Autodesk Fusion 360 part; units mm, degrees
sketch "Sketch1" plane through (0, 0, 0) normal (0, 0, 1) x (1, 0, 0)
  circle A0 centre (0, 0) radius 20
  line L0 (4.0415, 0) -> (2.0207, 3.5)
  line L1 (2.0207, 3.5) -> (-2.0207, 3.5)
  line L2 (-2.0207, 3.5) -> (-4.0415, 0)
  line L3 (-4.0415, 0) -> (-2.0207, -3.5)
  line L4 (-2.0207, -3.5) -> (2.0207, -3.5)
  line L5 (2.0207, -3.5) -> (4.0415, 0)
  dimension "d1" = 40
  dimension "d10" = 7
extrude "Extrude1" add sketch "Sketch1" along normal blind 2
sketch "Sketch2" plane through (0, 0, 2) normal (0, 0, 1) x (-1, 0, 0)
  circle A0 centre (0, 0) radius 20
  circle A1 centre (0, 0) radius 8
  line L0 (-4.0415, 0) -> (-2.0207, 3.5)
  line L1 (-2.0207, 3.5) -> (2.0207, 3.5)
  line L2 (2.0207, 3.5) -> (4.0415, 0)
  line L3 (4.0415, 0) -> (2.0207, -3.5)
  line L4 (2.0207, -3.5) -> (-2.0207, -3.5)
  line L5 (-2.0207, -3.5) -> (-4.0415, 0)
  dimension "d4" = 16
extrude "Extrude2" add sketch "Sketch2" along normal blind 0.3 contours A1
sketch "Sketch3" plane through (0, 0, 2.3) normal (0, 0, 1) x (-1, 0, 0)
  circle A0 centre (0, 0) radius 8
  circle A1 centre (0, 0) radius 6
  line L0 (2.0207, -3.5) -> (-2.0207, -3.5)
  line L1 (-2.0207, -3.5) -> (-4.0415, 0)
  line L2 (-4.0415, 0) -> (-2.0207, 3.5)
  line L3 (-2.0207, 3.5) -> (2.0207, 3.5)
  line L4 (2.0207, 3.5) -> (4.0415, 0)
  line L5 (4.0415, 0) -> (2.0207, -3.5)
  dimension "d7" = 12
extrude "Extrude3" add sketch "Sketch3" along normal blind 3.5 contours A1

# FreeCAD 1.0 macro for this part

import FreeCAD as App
import Part
import Sketcher
Q = App.Units.Quantity

doc = App.newDocument("Part")
body = doc.addObject("PartDesign::Body", "Body")

# Sketch on XY plane
sketch1 = body.newObject("Sketcher::SketchObject", "Sketch")
sketch1.AttachmentSupport = (doc.getObject("XY_Plane"), [""])
sketch1.MapMode = "FlatFace"
sketch1.addGeometry(Part.Circle(App.Vector(0, 0, 0), App.Vector(0, 0, 1), 20), False)
sketch1.addGeometry(Part.LineSegment(App.Vector(2, 3.5, 0), App.Vector(4, 0, 0)), False)
sketch1.addGeometry(Part.LineSegment(App.Vector(4, 0, 0), App.Vector(2, -3.5, 0)), False)
sketch1.addGeometry(Part.LineSegment(App.Vector(2, -3.5, 0), App.Vector(-2, -3.5, 0)), False)
sketch1.addGeometry(Part.LineSegment(App.Vector(-2, -3.5, 0), App.Vector(-4, 0, 0)), False)
sketch1.addGeometry(Part.LineSegment(App.Vector(-4, 0, 0), App.Vector(-2, 3.5, 0)), False)
sketch1.addGeometry(Part.LineSegment(App.Vector(-2, 3.5, 0), App.Vector(2, 3.5, 0)), False)
sketch1.addConstraint(Sketcher.Constraint("Coincident", 1, 2, 2, 1))
sketch1.addConstraint(Sketcher.Constraint("Coincident", 2, 2, 3, 1))
sketch1.addConstraint(Sketcher.Constraint("Coincident", 3, 2, 4, 1))
sketch1.addConstraint(Sketcher.Constraint("Coincident", 4, 2, 5, 1))
sketch1.addConstraint(Sketcher.Constraint("Coincident", 5, 2, 6, 1))
sketch1.addConstraint(Sketcher.Constraint("Coincident", 6, 2, 1, 1))
sketch1.addConstraint(Sketcher.Constraint("Horizontal", 3))
sketch1.addConstraint(Sketcher.Constraint("Horizontal", 6))
sketch1.addConstraint(Sketcher.Constraint("Coincident", 0, 3, -1, 1))
sketch1.addConstraint(Sketcher.Constraint("Symmetric", 1, 2, 4, 2, -1, 1))
sketch1.addConstraint(Sketcher.Constraint("Symmetric", 2, 2, 5, 2, -1, 1))
sketch1.addConstraint(Sketcher.Constraint("PointOnObject", 1, 2, -1))
sketch1.addConstraint(Sketcher.Constraint("Parallel", 1, 4))
sketch1.addConstraint(Sketcher.Constraint("Vertical", 3, 2, 5, 2))
sketch1.addConstraint(Sketcher.Constraint("Diameter", 0, Q("40 mm")))
sketch1.addConstraint(Sketcher.Constraint("DistanceY", 3, 2, 5, 2, Q("7 mm")))
sketch1.addConstraint(Sketcher.Constraint("Angle", 1, Q("-59.999 deg")))
sketch1.addConstraint(Sketcher.Constraint("DistanceX", 3, 2, 3, 1, Q("4.0414 mm")))
pad1 = body.newObject("PartDesign::Pad", "Pad")
pad1.Profile = sketch1
pad1.Length = 2

# Sketch on XY plane
sketch2 = body.newObject("Sketcher::SketchObject", "Sketch001")
sketch2.AttachmentSupport = (doc.getObject("XY_Plane"), [""])
sketch2.MapMode = "FlatFace"
sketch2.AttachmentOffset = App.Placement(App.Vector(0, 0, 2), App.Rotation())
sketch2.addGeometry(Part.Circle(App.Vector(0, 0, 0), App.Vector(0, 0, 1), 8), False)
sketch2.addGeometry(Part.LineSegment(App.Vector(2, 3.5, 0), App.Vector(4, 0, 0)), False)
sketch2.addGeometry(Part.LineSegment(App.Vector(4, 0, 0), App.Vector(2, -3.5, 0)), False)
sketch2.addGeometry(Part.LineSegment(App.Vector(2, -3.5, 0), App.Vector(-2, -3.5, 0)), False)
sketch2.addGeometry(Part.LineSegment(App.Vector(-2, -3.5, 0), App.Vector(-4, 0, 0)), False)
sketch2.addGeometry(Part.LineSegment(App.Vector(-4, 0, 0), App.Vector(-2, 3.5, 0)), False)
sketch2.addGeometry(Part.LineSegment(App.Vector(-2, 3.5, 0), App.Vector(2, 3.5, 0)), False)
sketch2.addConstraint(Sketcher.Constraint("Coincident", 1, 2, 2, 1))
sketch2.addConstraint(Sketcher.Constraint("Coincident", 2, 2, 3, 1))
sketch2.addConstraint(Sketcher.Constraint("Coincident", 3, 2, 4, 1))
sketch2.addConstraint(Sketcher.Constraint("Coincident", 4, 2, 5, 1))
sketch2.addConstraint(Sketcher.Constraint("Coincident", 5, 2, 6, 1))
sketch2.addConstraint(Sketcher.Constraint("Coincident", 6, 2, 1, 1))
sketch2.addConstraint(Sketcher.Constraint("Horizontal", 3))
sketch2.addConstraint(Sketcher.Constraint("Horizontal", 6))
sketch2.addConstraint(Sketcher.Constraint("Coincident", 0, 3, -1, 1))
sketch2.addConstraint(Sketcher.Constraint("Symmetric", 1, 2, 4, 2, -1, 1))
sketch2.addConstraint(Sketcher.Constraint("Symmetric", 2, 2, 5, 2, -1, 1))
sketch2.addConstraint(Sketcher.Constraint("PointOnObject", 1, 2, -1))
sketch2.addConstraint(Sketcher.Constraint("Parallel", 1, 4))
sketch2.addConstraint(Sketcher.Constraint("Vertical", 3, 2, 5, 2))
sketch2.addConstraint(Sketcher.Constraint("Diameter", 0, Q("16 mm")))
sketch2.addConstraint(Sketcher.Constraint("Angle", 1, Q("-59.999 deg")))
sketch2.addConstraint(Sketcher.Constraint("DistanceY", 3, 2, 5, 2, Q("7 mm")))
sketch2.addConstraint(Sketcher.Constraint("DistanceX", 3, 2, 3, 1, Q("4.0414 mm")))
pad2 = body.newObject("PartDesign::Pad", "Pad001")
pad2.Profile = sketch2
pad2.Length = 0.3

# Sketch on XY plane
sketch3 = body.newObject("Sketcher::SketchObject", "Sketch002")
sketch3.AttachmentSupport = (doc.getObject("XY_Plane"), [""])
sketch3.MapMode = "FlatFace"
sketch3.AttachmentOffset = App.Placement(App.Vector(0, 0, 2.3), App.Rotation())
sketch3.addGeometry(Part.Circle(App.Vector(0, 0, 0), App.Vector(0, 0, 1), 6), False)
sketch3.addGeometry(Part.LineSegment(App.Vector(-4, 0, 0), App.Vector(-2, 3.5, 0)), False)
sketch3.addGeometry(Part.LineSegment(App.Vector(-2, 3.5, 0), App.Vector(2, 3.5, 0)), False)
sketch3.addGeometry(Part.LineSegment(App.Vector(2, 3.5, 0), App.Vector(4, 0, 0)), False)
sketch3.addGeometry(Part.LineSegment(App.Vector(4, 0, 0), App.Vector(2, -3.5, 0)), False)
sketch3.addGeometry(Part.LineSegment(App.Vector(2, -3.5, 0), App.Vector(-2, -3.5, 0)), False)
sketch3.addGeometry(Part.LineSegment(App.Vector(-2, -3.5, 0), App.Vector(-4, 0, 0)), False)
sketch3.addConstraint(Sketcher.Constraint("Coincident", 1, 2, 2, 1))
sketch3.addConstraint(Sketcher.Constraint("Coincident", 2, 2, 3, 1))
sketch3.addConstraint(Sketcher.Constraint("Coincident", 3, 2, 4, 1))
sketch3.addConstraint(Sketcher.Constraint("Coincident", 4, 2, 5, 1))
sketch3.addConstraint(Sketcher.Constraint("Coincident", 5, 2, 6, 1))
sketch3.addConstraint(Sketcher.Constraint("Coincident", 6, 2, 1, 1))
sketch3.addConstraint(Sketcher.Constraint("Horizontal", 2))
sketch3.addConstraint(Sketcher.Constraint("Horizontal", 5))
sketch3.addConstraint(Sketcher.Constraint("Coincident", 0, 3, -1, 1))
sketch3.addConstraint(Sketcher.Constraint("Symmetric", 1, 2, 4, 2, -1, 1))
sketch3.addConstraint(Sketcher.Constraint("Symmetric", 3, 2, 6, 2, -1, 1))
sketch3.addConstraint(Sketcher.Constraint("PointOnObject", 3, 2, -1))
sketch3.addConstraint(Sketcher.Constraint("Parallel", 3, 6))
sketch3.addConstraint(Sketcher.Constraint("Vertical", 2, 2, 4, 2))
sketch3.addConstraint(Sketcher.Constraint("Diameter", 0, Q("12 mm")))
sketch3.addConstraint(Sketcher.Constraint("Angle", 1, Q("59.999 deg")))
sketch3.addConstraint(Sketcher.Constraint("DistanceY", 4, 2, 2, 2, Q("7 mm")))
sketch3.addConstraint(Sketcher.Constraint("DistanceX", 2, 1, 2, 2, Q("4.0414 mm")))
pad3 = body.newObject("PartDesign::Pad", "Pad002")
pad3.Profile = sketch3
pad3.Length = 3.5

doc.recompute()
